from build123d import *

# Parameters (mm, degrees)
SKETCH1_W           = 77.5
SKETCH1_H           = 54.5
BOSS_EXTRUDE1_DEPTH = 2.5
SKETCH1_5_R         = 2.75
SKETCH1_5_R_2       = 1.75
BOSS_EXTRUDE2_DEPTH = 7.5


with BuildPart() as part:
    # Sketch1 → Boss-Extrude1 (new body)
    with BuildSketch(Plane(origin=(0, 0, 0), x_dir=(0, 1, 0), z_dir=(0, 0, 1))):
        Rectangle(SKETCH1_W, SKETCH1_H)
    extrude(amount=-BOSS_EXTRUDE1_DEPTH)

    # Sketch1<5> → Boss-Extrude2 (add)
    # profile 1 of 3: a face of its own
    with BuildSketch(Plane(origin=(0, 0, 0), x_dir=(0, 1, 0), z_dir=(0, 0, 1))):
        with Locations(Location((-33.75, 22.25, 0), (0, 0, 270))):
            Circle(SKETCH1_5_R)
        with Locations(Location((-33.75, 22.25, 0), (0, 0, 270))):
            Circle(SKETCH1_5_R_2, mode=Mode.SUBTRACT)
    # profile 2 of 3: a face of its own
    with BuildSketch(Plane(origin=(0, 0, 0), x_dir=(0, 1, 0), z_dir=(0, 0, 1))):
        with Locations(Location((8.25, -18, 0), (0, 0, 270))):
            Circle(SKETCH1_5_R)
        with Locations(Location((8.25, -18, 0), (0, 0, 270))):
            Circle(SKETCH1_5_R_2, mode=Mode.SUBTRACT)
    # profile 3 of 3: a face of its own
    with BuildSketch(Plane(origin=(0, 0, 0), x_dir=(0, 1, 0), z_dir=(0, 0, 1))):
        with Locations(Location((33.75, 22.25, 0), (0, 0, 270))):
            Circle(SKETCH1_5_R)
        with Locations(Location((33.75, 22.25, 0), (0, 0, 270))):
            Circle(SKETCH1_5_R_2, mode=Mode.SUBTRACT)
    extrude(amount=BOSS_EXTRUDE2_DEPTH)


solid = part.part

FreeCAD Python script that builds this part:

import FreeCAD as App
import Part
import Sketcher
from FreeCAD import Vector
Q = App.Units.Quantity


def add_polygon(sketch, points):
    """Adds a closed chain of lines whose ends are joined by coincident constraints."""
    first, n = sketch.GeometryCount, len(points)
    for a, b in zip(points, points[1:] + points[:1]):
        sketch.addGeometry(Part.LineSegment(App.Vector(*a, 0), App.Vector(*b, 0)), False)
    for i in range(n):
        sketch.addConstraint(Sketcher.Constraint("Coincident", first + i, 2, first + (i + 1) % n, 1))

doc = App.newDocument("Part")
body = doc.addObject("PartDesign::Body", "Body")

# Sketch on XY plane
sketch1 = doc.addObject("Sketcher::SketchObject", "Sketch")
body.addObject(sketch1)
sketch1.AttachmentSupport = (doc.XY_Plane, [""])
sketch1.MapMode = "FlatFace"
add_polygon(sketch1, [(-27, -39), (27, -39), (27, 39), (-27, 39)])  # lines 0-3
sketch1.addConstraint(Sketcher.Constraint("Horizontal", 0))
sketch1.addConstraint(Sketcher.Constraint("Vertical", 1))
sketch1.addConstraint(Sketcher.Constraint("Horizontal", 2))
sketch1.addConstraint(Sketcher.Constraint("Vertical", 3))
sketch1.addConstraint(Sketcher.Constraint("Symmetric", 0, 2, 2, 2, -1, 1))
sketch1.addConstraint(Sketcher.Constraint("DistanceX", 0, 1, 0, 2, Q("54.5 mm")))
sketch1.addConstraint(Sketcher.Constraint("DistanceY", 1, 1, 1, 2, Q("77.5 mm")))
pad1 = doc.addObject("PartDesign::Pad", "Pad")
body.addObject(pad1)
pad1.Profile = sketch1
pad1.Length = 2.5
pad1.Reversed = True

# Sketch on XY plane
sketch2 = doc.addObject("Sketcher::SketchObject", "Sketch001")
body.addObject(sketch2)
sketch2.AttachmentSupport = (doc.XY_Plane, [""])
sketch2.MapMode = "FlatFace"
sketch2.addGeometry(Part.Circle(Vector(-22.2, -33.8, 0), Vector(0, 0, 1), 2.8), False)
sketch2.addGeometry(Part.Circle(Vector(-22.2, -33.8, 0), Vector(0, 0, 1), 1.8), False)
sketch2.addGeometry(Part.Circle(Vector(18, 8.2, 0), Vector(0, 0, 1), 2.8), False)
sketch2.addGeometry(Part.Circle(Vector(18, 8.2, 0), Vector(0, 0, 1), 1.8), False)
sketch2.addGeometry(Part.Circle(Vector(-22.2, 33.8, 0), Vector(0, 0, 1), 2.8), False)
sketch2.addGeometry(Part.Circle(Vector(-22.2, 33.8, 0), Vector(0, 0, 1), 1.8), False)
sketch2.addConstraint(Sketcher.Constraint("Coincident", 1, 3, 0, 3))
sketch2.addConstraint(Sketcher.Constraint("Coincident", 3, 3, 2, 3))
sketch2.addConstraint(Sketcher.Constraint("Coincident", 5, 3, 4, 3))
sketch2.addConstraint(Sketcher.Constraint("Equal", 0, 2))
sketch2.addConstraint(Sketcher.Constraint("Equal", 1, 3))
sketch2.addConstraint(Sketcher.Constraint("Equal", 2, 4))
sketch2.addConstraint(Sketcher.Constraint("Equal", 3, 5))
sketch2.addConstraint(Sketcher.Constraint("Symmetric", 0, 3, 4, 3, -1))
sketch2.addConstraint(Sketcher.Constraint("Diameter", 0, Q("5.5 mm")))
sketch2.addConstraint(Sketcher.Constraint("Diameter", 1, Q("3.5 mm")))
sketch2.addConstraint(Sketcher.Constraint("DistanceX", -1, 1, 2, 3, Q("18 mm")))
sketch2.addConstraint(Sketcher.Constraint("DistanceY", 0, 3, 2, 3, Q("42 mm")))
sketch2.addConstraint(Sketcher.Constraint("DistanceY", 2, 3, 4, 3, Q("25.5 mm")))
sketch2.addConstraint(Sketcher.Constraint("DistanceX", 0, 3, -1, 1, Q("22.25 mm")))
pad2 = doc.addObject("PartDesign::Pad", "Pad001")
body.addObject(pad2)
pad2.Profile = sketch2
pad2.Length = 7.5

doc.recompute()
